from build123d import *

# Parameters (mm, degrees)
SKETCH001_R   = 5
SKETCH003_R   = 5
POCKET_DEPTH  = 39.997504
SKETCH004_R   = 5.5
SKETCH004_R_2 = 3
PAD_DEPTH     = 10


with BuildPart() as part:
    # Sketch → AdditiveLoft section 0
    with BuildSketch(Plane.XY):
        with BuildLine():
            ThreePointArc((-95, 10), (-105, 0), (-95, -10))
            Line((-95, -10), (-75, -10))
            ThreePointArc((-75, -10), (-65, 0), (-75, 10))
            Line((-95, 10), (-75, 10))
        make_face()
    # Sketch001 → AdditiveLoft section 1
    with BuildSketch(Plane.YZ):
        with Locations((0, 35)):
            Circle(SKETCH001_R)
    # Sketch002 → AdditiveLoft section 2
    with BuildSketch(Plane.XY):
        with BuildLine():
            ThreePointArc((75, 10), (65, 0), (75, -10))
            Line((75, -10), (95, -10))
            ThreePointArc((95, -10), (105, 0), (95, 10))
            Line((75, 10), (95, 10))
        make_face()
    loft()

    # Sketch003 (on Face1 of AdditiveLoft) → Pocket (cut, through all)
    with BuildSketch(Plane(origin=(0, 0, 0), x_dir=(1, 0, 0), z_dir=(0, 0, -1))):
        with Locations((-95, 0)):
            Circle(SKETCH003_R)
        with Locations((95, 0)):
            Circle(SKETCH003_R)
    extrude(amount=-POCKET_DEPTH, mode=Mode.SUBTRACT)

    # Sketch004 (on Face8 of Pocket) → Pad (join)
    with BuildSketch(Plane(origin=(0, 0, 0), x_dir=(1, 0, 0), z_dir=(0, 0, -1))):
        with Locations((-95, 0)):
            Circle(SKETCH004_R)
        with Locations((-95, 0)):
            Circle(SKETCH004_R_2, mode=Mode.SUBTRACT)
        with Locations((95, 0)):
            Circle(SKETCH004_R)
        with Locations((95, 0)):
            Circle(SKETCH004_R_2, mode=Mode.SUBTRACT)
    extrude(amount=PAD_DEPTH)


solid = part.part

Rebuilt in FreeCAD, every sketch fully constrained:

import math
import FreeCAD as App
import Part
import Sketcher

V = App.Vector

doc = App.newDocument("Part")
body = doc.addObject("PartDesign::Body", "Body")

# Sketch on XY plane
sketch1 = body.newObject("Sketcher::SketchObject", "Sketch")
sketch1.AttachmentSupport = (doc.getObject("XY_Plane"), [""])
sketch1.MapMode = "FlatFace"
sketch1.addGeometry([
    Part.ArcOfCircle(Part.Circle(V(-95, 0, 0), V(0, 0, 1), 10), math.radians(90), math.radians(270)),
    Part.LineSegment(V(-95, -10, 0), V(-75, -10, 0)),
    Part.ArcOfCircle(Part.Circle(V(-75, 0, 0), V(0, 0, 1), 10), math.radians(-90), math.radians(90)),
    Part.LineSegment(V(-75, 10, 0), V(-95, 10, 0)),
], False)
sketch1.addConstraint([
    Sketcher.Constraint("Tangent", 0, 2, 1, 1),
    Sketcher.Constraint("Tangent", 1, 2, 2, 1),
    Sketcher.Constraint("Tangent", 2, 2, 3, 1),
    Sketcher.Constraint("Tangent", 3, 2, 0, 1),
    Sketcher.Constraint("Horizontal", 1),
    Sketcher.Constraint("Horizontal", 3),
    Sketcher.Constraint("PointOnObject", 0, 3, -1),
    Sketcher.Constraint("Radius", 0, 10.0),
    Sketcher.Constraint("DistanceX", 1, 1, 1, 2, 20.0),
    Sketcher.Constraint("DistanceX", 0, 3, -1, 1, 95.0),
])

# Sketch on YZ plane
sketch2 = body.newObject("Sketcher::SketchObject", "Sketch001")
sketch2.AttachmentSupport = (doc.getObject("YZ_Plane"), [""])
sketch2.MapMode = "FlatFace"
sketch2.addGeometry(Part.Circle(V(0, 35, 0), V(0, 0, 1), 5), False)
sketch2.addConstraint([
    Sketcher.Constraint("PointOnObject", 0, 3, -2),
    Sketcher.Constraint("Diameter", 0, 10.0),
    Sketcher.Constraint("DistanceY", -1, 1, 0, 3, 35.0),
])

# Sketch on XY plane
sketch3 = body.newObject("Sketcher::SketchObject", "Sketch002")
sketch3.AttachmentSupport = (doc.getObject("XY_Plane"), [""])
sketch3.MapMode = "FlatFace"
sketch3.addGeometry([
    Part.ArcOfCircle(Part.Circle(V(75, 0, 0), V(0, 0, 1), 10), math.radians(90), math.radians(270)),
    Part.LineSegment(V(75, -10, 0), V(95, -10, 0)),
    Part.ArcOfCircle(Part.Circle(V(95, 0, 0), V(0, 0, 1), 10), math.radians(-90), math.radians(90)),
    Part.LineSegment(V(95, 10, 0), V(75, 10, 0)),
], False)
sketch3.addConstraint([
    Sketcher.Constraint("Tangent", 0, 2, 1, 1),
    Sketcher.Constraint("Tangent", 1, 2, 2, 1),
    Sketcher.Constraint("Tangent", 2, 2, 3, 1),
    Sketcher.Constraint("Tangent", 3, 2, 0, 1),
    Sketcher.Constraint("Horizontal", 1),
    Sketcher.Constraint("Horizontal", 3),
    Sketcher.Constraint("PointOnObject", 0, 3, -1),
    Sketcher.Constraint("Radius", 0, 10.0),
    Sketcher.Constraint("DistanceX", 1, 1, 1, 2, 20.0),
    Sketcher.Constraint("DistanceX", -1, 1, 0, 3, 75.0),
])

additiveloft = body.newObject("PartDesign::AdditiveLoft", "AdditiveLoft")
additiveloft.Profile = sketch1
additiveloft.Sections = [sketch2, sketch3]

# Sketch on XY plane
sketch4 = body.newObject("Sketcher::SketchObject", "Sketch003")
sketch4.AttachmentSupport = (doc.getObject("XY_Plane"), [""])
sketch4.MapMode = "FlatFace"
sketch4.addGeometry([
    Part.Circle(V(-95, 0, 0), V(0, 0, 1), 5),
    Part.Circle(V(95, 0, 0), V(0, 0, 1), 5),
], False)
sketch4.addConstraint([
    Sketcher.Constraint("Equal", 0, 1),
    Sketcher.Constraint("Symmetric", 0, 3, 1, 3, -1, 1),
    Sketcher.Constraint("PointOnObject", 0, 3, -1),
    Sketcher.Constraint("Diameter", 0, 10.0),
    Sketcher.Constraint("DistanceX", 0, 3, -1, 1, 95.0),
])
pocket1 = body.newObject("PartDesign::Pocket", "Pocket")
pocket1.Profile = sketch4
pocket1.Type = "ThroughAll"
pocket1.Reversed = True

# Sketch on XY plane
sketch5 = body.newObject("Sketcher::SketchObject", "Sketch004")
sketch5.AttachmentSupport = (doc.getObject("XY_Plane"), [""])
sketch5.MapMode = "FlatFace"
sketch5.addGeometry([
    Part.Circle(V(-95, 0, 0), V(0, 0, 1), 5.5),
    Part.Circle(V(-95, 0, 0), V(0, 0, 1), 3),
    Part.Circle(V(95, 0, 0), V(0, 0, 1), 5.5),
    Part.Circle(V(95, 0, 0), V(0, 0, 1), 3),
], False)
sketch5.addConstraint([
    Sketcher.Constraint("Coincident", 1, 3, 0, 3),
    Sketcher.Constraint("Coincident", 3, 3, 2, 3),
    Sketcher.Constraint("Equal", 0, 2),
    Sketcher.Constraint("Equal", 1, 3),
    Sketcher.Constraint("Symmetric", 0, 3, 2, 3, -1, 1),
    Sketcher.Constraint("PointOnObject", 0, 3, -1),
    Sketcher.Constraint("Diameter", 0, 11.0),
    Sketcher.Constraint("Diameter", 1, 6.0),
    Sketcher.Constraint("DistanceX", 0, 3, -1, 1, 95.0),
])
pad1 = body.newObject("PartDesign::Pad", "Pad")
pad1.Profile = sketch5
pad1.Length = 10
pad1.Reversed = True

doc.recompute()
